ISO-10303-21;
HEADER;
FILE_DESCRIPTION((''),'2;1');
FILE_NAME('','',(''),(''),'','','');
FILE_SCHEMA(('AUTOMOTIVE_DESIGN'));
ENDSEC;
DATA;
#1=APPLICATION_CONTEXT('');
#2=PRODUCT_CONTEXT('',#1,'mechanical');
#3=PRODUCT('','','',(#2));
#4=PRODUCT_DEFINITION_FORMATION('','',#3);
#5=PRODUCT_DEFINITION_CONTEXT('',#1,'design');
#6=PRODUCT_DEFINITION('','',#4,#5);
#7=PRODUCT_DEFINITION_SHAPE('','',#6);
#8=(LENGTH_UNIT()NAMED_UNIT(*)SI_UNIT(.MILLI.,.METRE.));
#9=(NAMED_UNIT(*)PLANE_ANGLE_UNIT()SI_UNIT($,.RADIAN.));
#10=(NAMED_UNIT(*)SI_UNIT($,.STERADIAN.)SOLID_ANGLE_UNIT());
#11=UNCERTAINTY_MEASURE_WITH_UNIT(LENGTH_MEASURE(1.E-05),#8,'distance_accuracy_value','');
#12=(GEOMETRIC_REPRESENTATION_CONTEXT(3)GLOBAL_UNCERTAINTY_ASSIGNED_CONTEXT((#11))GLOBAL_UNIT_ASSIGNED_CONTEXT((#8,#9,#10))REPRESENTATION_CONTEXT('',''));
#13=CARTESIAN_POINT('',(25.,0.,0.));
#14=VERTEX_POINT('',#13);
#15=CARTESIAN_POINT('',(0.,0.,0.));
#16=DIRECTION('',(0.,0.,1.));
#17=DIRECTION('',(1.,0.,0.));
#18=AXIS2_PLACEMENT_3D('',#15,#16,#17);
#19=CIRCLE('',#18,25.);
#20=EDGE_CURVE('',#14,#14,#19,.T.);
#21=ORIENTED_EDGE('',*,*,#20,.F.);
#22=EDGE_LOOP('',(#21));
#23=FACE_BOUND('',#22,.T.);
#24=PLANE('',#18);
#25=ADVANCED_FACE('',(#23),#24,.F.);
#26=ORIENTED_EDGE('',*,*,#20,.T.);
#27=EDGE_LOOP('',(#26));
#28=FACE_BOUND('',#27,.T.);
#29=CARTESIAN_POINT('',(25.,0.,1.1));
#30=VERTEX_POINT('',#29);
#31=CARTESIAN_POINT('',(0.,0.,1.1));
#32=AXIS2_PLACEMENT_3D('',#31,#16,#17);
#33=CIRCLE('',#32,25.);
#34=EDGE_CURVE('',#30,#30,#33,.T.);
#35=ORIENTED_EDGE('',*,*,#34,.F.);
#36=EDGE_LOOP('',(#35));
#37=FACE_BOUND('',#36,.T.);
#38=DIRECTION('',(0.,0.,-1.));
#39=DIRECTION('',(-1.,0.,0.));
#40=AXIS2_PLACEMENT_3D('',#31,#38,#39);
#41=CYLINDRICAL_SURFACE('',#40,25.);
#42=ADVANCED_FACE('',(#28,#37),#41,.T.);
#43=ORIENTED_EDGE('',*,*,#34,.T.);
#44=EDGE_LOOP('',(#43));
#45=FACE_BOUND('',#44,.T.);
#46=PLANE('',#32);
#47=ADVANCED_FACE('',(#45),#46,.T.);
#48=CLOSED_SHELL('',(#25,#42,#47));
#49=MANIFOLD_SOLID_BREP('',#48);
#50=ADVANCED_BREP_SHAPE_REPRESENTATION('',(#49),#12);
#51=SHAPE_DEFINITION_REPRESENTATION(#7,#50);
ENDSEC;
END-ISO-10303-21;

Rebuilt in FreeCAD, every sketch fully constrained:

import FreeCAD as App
import Part
import Sketcher
from FreeCAD import Vector
Q = App.Units.Quantity

doc = App.newDocument("Part")
body = doc.addObject("PartDesign::Body", "Body")

# Sketch on XY plane
sketch1 = doc.addObject("Sketcher::SketchObject", "Sketch")
body.addObject(sketch1)
sketch1.AttachmentSupport = (doc.XY_Plane, [""])
sketch1.MapMode = "FlatFace"
sketch1.addGeometry(Part.Circle(Vector(0, 0, 0), Vector(0, 0, 1), 25), False)
sketch1.addConstraint(Sketcher.Constraint("Coincident", 0, 3, -1, 1))
sketch1.addConstraint(Sketcher.Constraint("Diameter", 0, Q("50 mm")))
pad1 = doc.addObject("PartDesign::Pad", "Pad")
body.addObject(pad1)
pad1.Profile = sketch1
pad1.Length = 1.1

doc.recompute()
